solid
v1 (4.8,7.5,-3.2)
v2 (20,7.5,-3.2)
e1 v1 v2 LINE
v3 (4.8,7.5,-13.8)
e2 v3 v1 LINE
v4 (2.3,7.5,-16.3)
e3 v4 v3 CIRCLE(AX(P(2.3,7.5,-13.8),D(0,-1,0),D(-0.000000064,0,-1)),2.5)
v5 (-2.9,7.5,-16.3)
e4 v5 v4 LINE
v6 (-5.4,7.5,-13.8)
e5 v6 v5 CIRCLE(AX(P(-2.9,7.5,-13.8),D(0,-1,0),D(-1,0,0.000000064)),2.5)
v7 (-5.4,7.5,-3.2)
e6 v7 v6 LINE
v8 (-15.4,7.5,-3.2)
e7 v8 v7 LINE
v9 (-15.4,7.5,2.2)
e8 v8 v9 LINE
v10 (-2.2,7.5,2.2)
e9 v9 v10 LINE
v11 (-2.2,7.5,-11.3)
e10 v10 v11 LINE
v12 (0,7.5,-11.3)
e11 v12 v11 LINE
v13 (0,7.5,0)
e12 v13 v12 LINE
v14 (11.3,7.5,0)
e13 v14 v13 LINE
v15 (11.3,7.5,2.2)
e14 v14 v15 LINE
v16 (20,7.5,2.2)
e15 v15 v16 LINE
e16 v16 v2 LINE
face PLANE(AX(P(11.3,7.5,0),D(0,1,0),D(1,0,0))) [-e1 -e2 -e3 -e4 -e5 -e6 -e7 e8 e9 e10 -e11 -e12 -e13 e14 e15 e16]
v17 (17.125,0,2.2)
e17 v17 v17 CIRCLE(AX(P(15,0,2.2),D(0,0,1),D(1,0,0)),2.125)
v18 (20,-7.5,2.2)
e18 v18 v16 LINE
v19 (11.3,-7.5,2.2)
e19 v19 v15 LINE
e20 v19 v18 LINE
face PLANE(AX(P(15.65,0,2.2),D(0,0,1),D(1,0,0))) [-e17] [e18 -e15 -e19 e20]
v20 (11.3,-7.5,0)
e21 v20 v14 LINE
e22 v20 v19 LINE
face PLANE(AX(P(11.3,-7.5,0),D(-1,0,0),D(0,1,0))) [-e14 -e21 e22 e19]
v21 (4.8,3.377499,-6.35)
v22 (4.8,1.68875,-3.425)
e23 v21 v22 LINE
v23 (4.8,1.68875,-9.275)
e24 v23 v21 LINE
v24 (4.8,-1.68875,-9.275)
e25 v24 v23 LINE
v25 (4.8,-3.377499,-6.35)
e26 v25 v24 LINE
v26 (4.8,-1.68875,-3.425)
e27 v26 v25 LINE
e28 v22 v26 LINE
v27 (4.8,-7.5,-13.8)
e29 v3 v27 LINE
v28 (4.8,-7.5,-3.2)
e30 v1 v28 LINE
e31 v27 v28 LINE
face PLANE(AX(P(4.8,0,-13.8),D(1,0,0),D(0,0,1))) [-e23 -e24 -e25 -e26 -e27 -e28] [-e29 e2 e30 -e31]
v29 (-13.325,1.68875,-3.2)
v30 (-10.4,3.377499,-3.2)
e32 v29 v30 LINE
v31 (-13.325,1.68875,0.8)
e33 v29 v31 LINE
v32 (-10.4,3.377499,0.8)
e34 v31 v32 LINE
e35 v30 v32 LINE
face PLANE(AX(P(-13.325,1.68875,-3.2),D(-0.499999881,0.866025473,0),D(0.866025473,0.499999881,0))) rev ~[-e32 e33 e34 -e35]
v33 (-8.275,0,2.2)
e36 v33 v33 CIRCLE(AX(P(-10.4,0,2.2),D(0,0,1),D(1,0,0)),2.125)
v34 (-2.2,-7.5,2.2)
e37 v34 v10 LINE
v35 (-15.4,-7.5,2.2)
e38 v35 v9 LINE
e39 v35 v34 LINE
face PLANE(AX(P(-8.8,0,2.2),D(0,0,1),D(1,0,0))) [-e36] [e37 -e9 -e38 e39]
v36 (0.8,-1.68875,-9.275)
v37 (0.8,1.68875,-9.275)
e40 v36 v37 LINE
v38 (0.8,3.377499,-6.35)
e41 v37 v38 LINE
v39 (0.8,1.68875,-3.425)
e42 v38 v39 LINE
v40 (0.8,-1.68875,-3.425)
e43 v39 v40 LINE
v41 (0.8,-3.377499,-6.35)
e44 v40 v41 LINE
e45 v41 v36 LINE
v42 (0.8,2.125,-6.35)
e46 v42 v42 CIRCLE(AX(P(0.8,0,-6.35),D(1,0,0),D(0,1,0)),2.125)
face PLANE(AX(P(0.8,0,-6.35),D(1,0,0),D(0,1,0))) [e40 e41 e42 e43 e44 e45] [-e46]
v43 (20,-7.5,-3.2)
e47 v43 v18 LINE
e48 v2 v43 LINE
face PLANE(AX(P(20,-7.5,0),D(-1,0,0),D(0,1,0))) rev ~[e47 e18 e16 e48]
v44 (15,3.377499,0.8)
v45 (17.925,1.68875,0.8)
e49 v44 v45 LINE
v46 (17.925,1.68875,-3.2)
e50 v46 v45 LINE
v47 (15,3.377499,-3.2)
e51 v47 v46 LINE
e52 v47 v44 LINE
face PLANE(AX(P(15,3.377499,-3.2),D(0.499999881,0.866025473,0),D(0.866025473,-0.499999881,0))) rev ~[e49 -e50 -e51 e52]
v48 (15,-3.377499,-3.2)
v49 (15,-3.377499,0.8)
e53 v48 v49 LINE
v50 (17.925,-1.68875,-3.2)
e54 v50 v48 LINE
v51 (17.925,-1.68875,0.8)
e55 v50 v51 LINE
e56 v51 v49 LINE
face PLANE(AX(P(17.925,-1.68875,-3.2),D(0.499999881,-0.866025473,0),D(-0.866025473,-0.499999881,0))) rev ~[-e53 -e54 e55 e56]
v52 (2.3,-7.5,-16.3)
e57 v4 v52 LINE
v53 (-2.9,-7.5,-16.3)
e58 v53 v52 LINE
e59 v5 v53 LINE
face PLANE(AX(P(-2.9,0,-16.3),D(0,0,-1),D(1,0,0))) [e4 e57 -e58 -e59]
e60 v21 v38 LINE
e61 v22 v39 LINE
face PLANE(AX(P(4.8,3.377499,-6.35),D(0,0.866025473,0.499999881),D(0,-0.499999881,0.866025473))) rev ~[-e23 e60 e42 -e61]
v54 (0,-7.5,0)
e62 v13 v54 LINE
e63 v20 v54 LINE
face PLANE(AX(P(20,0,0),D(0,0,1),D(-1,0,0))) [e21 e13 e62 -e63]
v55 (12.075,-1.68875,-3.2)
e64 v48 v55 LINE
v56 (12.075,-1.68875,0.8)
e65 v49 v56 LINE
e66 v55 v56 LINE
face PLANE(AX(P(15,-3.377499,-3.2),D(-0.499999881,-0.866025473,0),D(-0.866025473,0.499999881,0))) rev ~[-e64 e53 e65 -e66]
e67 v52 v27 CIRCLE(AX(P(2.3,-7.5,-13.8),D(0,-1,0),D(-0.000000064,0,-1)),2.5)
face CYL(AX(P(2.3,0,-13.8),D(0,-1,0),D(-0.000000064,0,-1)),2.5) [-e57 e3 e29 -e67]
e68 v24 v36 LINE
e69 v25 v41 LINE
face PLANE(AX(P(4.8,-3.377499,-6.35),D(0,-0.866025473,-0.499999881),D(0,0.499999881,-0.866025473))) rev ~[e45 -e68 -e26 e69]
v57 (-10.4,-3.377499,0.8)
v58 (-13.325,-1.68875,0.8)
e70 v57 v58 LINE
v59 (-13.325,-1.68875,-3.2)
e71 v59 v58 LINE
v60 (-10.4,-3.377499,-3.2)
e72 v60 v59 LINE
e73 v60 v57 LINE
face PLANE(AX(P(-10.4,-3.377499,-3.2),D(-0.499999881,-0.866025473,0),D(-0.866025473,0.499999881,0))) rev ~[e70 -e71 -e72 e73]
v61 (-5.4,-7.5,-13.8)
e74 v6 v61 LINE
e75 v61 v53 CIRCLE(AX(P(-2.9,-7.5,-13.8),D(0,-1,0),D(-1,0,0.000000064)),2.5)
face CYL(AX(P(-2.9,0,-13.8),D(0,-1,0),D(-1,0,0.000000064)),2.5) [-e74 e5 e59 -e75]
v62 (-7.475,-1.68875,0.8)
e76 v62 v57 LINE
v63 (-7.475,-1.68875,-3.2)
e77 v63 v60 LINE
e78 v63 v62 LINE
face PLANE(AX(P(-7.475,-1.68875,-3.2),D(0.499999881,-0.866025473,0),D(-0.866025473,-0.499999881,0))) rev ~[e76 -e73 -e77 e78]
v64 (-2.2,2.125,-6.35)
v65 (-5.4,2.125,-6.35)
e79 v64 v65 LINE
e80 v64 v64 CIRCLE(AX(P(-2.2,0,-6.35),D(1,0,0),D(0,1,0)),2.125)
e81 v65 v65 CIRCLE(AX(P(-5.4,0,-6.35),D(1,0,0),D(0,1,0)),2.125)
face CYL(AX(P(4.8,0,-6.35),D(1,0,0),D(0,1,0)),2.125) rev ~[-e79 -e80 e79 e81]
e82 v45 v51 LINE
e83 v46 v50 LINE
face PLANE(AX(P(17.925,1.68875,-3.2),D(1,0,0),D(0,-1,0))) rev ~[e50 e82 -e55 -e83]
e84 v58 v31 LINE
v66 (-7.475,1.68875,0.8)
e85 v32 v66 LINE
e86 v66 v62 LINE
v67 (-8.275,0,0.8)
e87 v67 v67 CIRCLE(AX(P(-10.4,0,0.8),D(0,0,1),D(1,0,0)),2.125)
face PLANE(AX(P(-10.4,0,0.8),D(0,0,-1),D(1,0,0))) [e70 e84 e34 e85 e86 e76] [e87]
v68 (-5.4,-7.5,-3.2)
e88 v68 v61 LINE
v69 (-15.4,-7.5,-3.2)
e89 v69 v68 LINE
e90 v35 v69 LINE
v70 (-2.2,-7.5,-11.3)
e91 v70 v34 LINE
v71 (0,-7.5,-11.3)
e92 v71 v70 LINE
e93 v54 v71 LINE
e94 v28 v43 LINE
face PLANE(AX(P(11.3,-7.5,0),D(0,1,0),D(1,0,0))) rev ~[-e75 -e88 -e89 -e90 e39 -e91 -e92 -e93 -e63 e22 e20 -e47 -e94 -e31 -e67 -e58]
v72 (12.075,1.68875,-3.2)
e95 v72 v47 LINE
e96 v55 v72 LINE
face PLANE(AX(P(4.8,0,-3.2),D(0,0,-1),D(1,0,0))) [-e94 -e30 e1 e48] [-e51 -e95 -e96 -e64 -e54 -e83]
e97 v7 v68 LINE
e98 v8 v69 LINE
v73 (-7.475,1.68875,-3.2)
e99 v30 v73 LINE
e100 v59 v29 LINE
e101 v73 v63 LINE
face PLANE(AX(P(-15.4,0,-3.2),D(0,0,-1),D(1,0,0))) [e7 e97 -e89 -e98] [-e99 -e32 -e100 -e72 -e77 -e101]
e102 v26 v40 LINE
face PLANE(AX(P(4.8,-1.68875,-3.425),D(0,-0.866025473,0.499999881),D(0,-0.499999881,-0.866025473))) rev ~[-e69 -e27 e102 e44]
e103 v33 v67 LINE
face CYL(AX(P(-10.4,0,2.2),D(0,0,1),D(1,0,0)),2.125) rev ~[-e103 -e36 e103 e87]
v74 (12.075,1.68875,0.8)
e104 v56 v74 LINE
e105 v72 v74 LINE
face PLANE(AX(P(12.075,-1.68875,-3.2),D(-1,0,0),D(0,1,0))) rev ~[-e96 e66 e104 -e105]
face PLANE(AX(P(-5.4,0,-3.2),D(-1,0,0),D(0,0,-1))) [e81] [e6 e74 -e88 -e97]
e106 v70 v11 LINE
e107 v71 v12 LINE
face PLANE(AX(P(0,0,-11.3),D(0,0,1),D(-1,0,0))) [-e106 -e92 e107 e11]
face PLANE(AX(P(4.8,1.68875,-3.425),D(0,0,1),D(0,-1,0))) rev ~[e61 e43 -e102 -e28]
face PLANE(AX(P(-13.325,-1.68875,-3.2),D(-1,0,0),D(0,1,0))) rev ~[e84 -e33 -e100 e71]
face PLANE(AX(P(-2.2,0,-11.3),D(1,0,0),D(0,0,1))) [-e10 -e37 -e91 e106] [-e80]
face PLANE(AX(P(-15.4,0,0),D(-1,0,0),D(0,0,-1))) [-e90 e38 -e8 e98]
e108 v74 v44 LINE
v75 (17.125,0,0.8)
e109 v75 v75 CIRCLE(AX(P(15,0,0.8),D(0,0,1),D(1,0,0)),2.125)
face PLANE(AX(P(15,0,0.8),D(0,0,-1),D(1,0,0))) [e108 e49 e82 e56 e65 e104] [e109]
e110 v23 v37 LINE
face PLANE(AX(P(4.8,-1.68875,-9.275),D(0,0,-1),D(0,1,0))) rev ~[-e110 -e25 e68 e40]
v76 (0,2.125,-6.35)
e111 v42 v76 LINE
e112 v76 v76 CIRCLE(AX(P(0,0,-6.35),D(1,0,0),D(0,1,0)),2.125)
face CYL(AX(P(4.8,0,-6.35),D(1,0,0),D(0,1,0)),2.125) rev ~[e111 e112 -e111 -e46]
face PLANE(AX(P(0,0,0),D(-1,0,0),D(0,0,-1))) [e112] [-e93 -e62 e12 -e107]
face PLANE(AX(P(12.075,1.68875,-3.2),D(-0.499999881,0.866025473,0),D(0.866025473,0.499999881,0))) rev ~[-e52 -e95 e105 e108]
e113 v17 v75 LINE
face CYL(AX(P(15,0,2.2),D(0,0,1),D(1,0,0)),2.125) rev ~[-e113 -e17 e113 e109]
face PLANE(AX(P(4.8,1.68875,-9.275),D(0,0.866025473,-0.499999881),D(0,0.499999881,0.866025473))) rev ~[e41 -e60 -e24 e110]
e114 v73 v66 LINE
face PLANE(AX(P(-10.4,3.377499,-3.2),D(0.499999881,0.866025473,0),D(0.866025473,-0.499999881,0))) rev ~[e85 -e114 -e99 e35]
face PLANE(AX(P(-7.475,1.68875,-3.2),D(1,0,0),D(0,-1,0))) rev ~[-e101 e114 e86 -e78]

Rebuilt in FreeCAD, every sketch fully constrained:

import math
import FreeCAD as App
import Part
import Sketcher
from FreeCAD import Vector
Q = App.Units.Quantity


def add_polygon(sketch, points):
    """Adds a closed chain of lines whose ends are joined by coincident constraints."""
    first, n = sketch.GeometryCount, len(points)
    for a, b in zip(points, points[1:] + points[:1]):
        sketch.addGeometry(Part.LineSegment(App.Vector(*a, 0), App.Vector(*b, 0)), False)
    for i in range(n):
        sketch.addConstraint(Sketcher.Constraint("Coincident", first + i, 2, first + (i + 1) % n, 1))

doc = App.newDocument("Part")
body = doc.addObject("PartDesign::Body", "Body")

# Sketch on XZ plane
sketch1 = body.newObject("Sketcher::SketchObject", "Sketch")
sketch1.AttachmentSupport = (doc.getObject("XZ_Plane"), [""])
sketch1.MapMode = "FlatFace"
sketch1.addGeometry(Part.LineSegment(Vector(-2.2, 0, 0), Vector(-15.4, 0, 0)), False)
sketch1.addGeometry(Part.LineSegment(Vector(-15.4, 0, 0), Vector(-15.4, -3.2, 0)), False)
sketch1.addGeometry(Part.LineSegment(Vector(-15.4, -3.2, 0), Vector(-5.4, -3.2, 0)), False)
sketch1.addGeometry(Part.LineSegment(Vector(-5.4, -3.2, 0), Vector(-5.4, -13.8, 0)), False)
sketch1.addGeometry(Part.ArcOfCircle(Part.Circle(Vector(-2.9, -13.8, 0), Vector(0, 0, 1), 2.5), math.radians(180), math.radians(270)), False)
sketch1.addGeometry(Part.LineSegment(Vector(-2.9, -16.3, 0), Vector(2.3, -16.3, 0)), False)
sketch1.addGeometry(Part.ArcOfCircle(Part.Circle(Vector(2.3, -13.8, 0), Vector(0, 0, 1), 2.5), math.radians(-90), math.radians(0)), False)
sketch1.addGeometry(Part.LineSegment(Vector(4.8, -13.8, 0), Vector(4.8, -3.2, 0)), False)
sketch1.addGeometry(Part.LineSegment(Vector(4.8, -3.2, 0), Vector(20, -3.2, 0)), False)
sketch1.addGeometry(Part.LineSegment(Vector(20, -3.2, 0), Vector(20, 0, 0)), False)
sketch1.addGeometry(Part.LineSegment(Vector(20, 0, 0), Vector(0, 0, 0)), False)
sketch1.addGeometry(Part.LineSegment(Vector(0, 0, 0), Vector(0, -11.3, 0)), False)
sketch1.addGeometry(Part.LineSegment(Vector(0, -11.3, 0), Vector(-2.2, -11.3, 0)), False)
sketch1.addGeometry(Part.LineSegment(Vector(-2.2, -11.3, 0), Vector(-2.2, 0, 0)), False)
sketch1.addConstraint(Sketcher.Constraint("Coincident", 0, 2, 1, 1))
sketch1.addConstraint(Sketcher.Constraint("Coincident", 1, 2, 2, 1))
sketch1.addConstraint(Sketcher.Constraint("Coincident", 2, 2, 3, 1))
sketch1.addConstraint(Sketcher.Constraint("Tangent", 3, 2, 4, 1))
sketch1.addConstraint(Sketcher.Constraint("Tangent", 4, 2, 5, 1))
sketch1.addConstraint(Sketcher.Constraint("Tangent", 5, 2, 6, 1))
sketch1.addConstraint(Sketcher.Constraint("Tangent", 6, 2, 7, 1))
sketch1.addConstraint(Sketcher.Constraint("Coincident", 7, 2, 8, 1))
sketch1.addConstraint(Sketcher.Constraint("Coincident", 8, 2, 9, 1))
sketch1.addConstraint(Sketcher.Constraint("Coincident", 9, 2, 10, 1))
sketch1.addConstraint(Sketcher.Constraint("Coincident", 10, 2, 11, 1))
sketch1.addConstraint(Sketcher.Constraint("Coincident", 11, 2, 12, 1))
sketch1.addConstraint(Sketcher.Constraint("Coincident", 12, 2, 13, 1))
sketch1.addConstraint(Sketcher.Constraint("Coincident", 13, 2, 0, 1))
sketch1.addConstraint(Sketcher.Constraint("Horizontal", 0))
sketch1.addConstraint(Sketcher.Constraint("Vertical", 1))
sketch1.addConstraint(Sketcher.Constraint("Horizontal", 2))
sketch1.addConstraint(Sketcher.Constraint("Vertical", 3))
sketch1.addConstraint(Sketcher.Constraint("Horizontal", 5))
sketch1.addConstraint(Sketcher.Constraint("Vertical", 7))
sketch1.addConstraint(Sketcher.Constraint("Horizontal", 8))
sketch1.addConstraint(Sketcher.Constraint("Vertical", 9))
sketch1.addConstraint(Sketcher.Constraint("Horizontal", 10))
sketch1.addConstraint(Sketcher.Constraint("Vertical", 11))
sketch1.addConstraint(Sketcher.Constraint("Horizontal", 12))
sketch1.addConstraint(Sketcher.Constraint("Vertical", 13))
sketch1.addConstraint(Sketcher.Constraint("Coincident", 10, 2, -1, 1))
sketch1.addConstraint(Sketcher.Constraint("Equal", 4, 6))
sketch1.addConstraint(Sketcher.Constraint("PointOnObject", 0, 2, -1))
sketch1.addConstraint(Sketcher.Constraint("Horizontal", 2, 2, 7, 2))
sketch1.addConstraint(Sketcher.Constraint("Radius", 4, 2.5))
sketch1.addConstraint(Sketcher.Constraint("DistanceX", 2, 1, 2, 2, 10.0))
sketch1.addConstraint(Sketcher.Constraint("DistanceX", 10, 2, 10, 1, 20.0))
sketch1.addConstraint(Sketcher.Constraint("DistanceX", 0, 2, 0, 1, 13.2))
sketch1.addConstraint(Sketcher.Constraint("DistanceX", 5, 1, 5, 2, 5.2))
sketch1.addConstraint(Sketcher.Constraint("DistanceX", 8, 1, 8, 2, 15.2))
sketch1.addConstraint(Sketcher.Constraint("DistanceY", 1, 2, 1, 1, 3.2))
sketch1.addConstraint(Sketcher.Constraint("DistanceY", 3, 2, 3, 1, 10.6))
sketch1.addConstraint(Sketcher.Constraint("DistanceY", 11, 2, 11, 1, 11.3))
pad1 = body.newObject("PartDesign::Pad", "Pad")
pad1.Profile = sketch1
pad1.Length = 15
pad1.Midplane = True

# Sketch on XY plane
sketch2 = body.newObject("Sketcher::SketchObject", "Sketch001")
sketch2.AttachmentSupport = (doc.getObject("XY_Plane"), [""])
sketch2.MapMode = "FlatFace"
add_polygon(sketch2, [(11, 8), (11, -8), (20, -8), (20, 8)])  # lines 0-3
add_polygon(sketch2, [(-15, 8), (-15, -8), (-2, -8), (-2, 8)])  # lines 4-7
sketch2.addConstraint(Sketcher.Constraint("Vertical", 0))
sketch2.addConstraint(Sketcher.Constraint("Horizontal", 1))
sketch2.addConstraint(Sketcher.Constraint("Vertical", 2))
sketch2.addConstraint(Sketcher.Constraint("Horizontal", 3))
sketch2.addConstraint(Sketcher.Constraint("Vertical", 4))
sketch2.addConstraint(Sketcher.Constraint("Horizontal", 5))
sketch2.addConstraint(Sketcher.Constraint("Vertical", 6))
sketch2.addConstraint(Sketcher.Constraint("Horizontal", 7))
sketch2.addConstraint(Sketcher.Constraint("Horizontal", 1, 2, 4, 2))
sketch2.addConstraint(Sketcher.Constraint("Horizontal", 3, 2, 6, 2))
sketch2.addConstraint(Sketcher.Constraint("DistanceY", 0, 2, 0, 1, 15.0))
sketch2.addConstraint(Sketcher.Constraint("DistanceX", 1, 1, 1, 2, 8.7))
sketch2.addConstraint(Sketcher.Constraint("DistanceX", 5, 1, 5, 2, 13.2))
sketch2.addConstraint(Sketcher.Constraint("DistanceX", -1, 1, 1, 2, 20.0))
sketch2.addConstraint(Sketcher.Constraint("DistanceY", 0, 2, -1, 1, 7.5))
sketch2.addConstraint(Sketcher.Constraint("DistanceX", 4, 2, -1, 1, 15.4))
pad2 = body.newObject("PartDesign::Pad", "Pad001")
pad2.Profile = sketch2
pad2.Length = 2.2

# Sketch on XY plane
sketch3 = body.newObject("Sketcher::SketchObject", "Sketch002")
sketch3.AttachmentSupport = (doc.getObject("XY_Plane"), [""])
sketch3.MapMode = "FlatFace"
sketch3.AttachmentOffset = App.Placement(Vector(0, 0, 2.2), App.Rotation())
sketch3.addGeometry(Part.Circle(Vector(-10.4, 0, 0), Vector(0, 0, 1), 2.1), False)
sketch3.addGeometry(Part.Circle(Vector(15, 0, 0), Vector(0, 0, 1), 2.1), False)
sketch3.addConstraint(Sketcher.Constraint("Equal", 0, 1))
sketch3.addConstraint(Sketcher.Constraint("PointOnObject", 0, 3, -1))
sketch3.addConstraint(Sketcher.Constraint("PointOnObject", 1, 3, -1))
sketch3.addConstraint(Sketcher.Constraint("Diameter", 0, 4.25))
sketch3.addConstraint(Sketcher.Constraint("DistanceX", -1, 1, 1, 3, 15.0))
sketch3.addConstraint(Sketcher.Constraint("DistanceX", 0, 3, -1, 1, 10.4))
pocket1 = body.newObject("PartDesign::Pocket", "Pocket")
pocket1.Profile = sketch3
pocket1.Length = 25

# Sketch on XY plane
sketch4 = body.newObject("Sketcher::SketchObject", "Sketch003")
sketch4.AttachmentSupport = (doc.getObject("XY_Plane"), [""])
sketch4.MapMode = "FlatFace"
sketch4.AttachmentOffset = App.Placement(Vector(0, 0, -3.2), App.Rotation())
add_polygon(sketch4, [(-7.5, 1.7), (-7.5, -1.7), (-10.4, -3.4), (-13.3, -1.7), (-13.3, 1.7), (-10.4, 3.4)])  # lines 0-5
add_polygon(sketch4, [(17.9, 1.7), (17.9, -1.7), (15, -3.4), (12.1, -1.7), (12.1, 1.7), (15, 3.4)])  # lines 6-11
sketch4.addConstraint(Sketcher.Constraint("Vertical", 0))
sketch4.addConstraint(Sketcher.Constraint("Vertical", 3))
sketch4.addConstraint(Sketcher.Constraint("Vertical", 6))
sketch4.addConstraint(Sketcher.Constraint("Vertical", 9))
sketch4.addConstraint(Sketcher.Constraint("Symmetric", 1, 2, 4, 2, -1))
sketch4.addConstraint(Sketcher.Constraint("Symmetric", 7, 2, 10, 2, -1))
sketch4.addConstraint(Sketcher.Constraint("Parallel", 1, 4))
sketch4.addConstraint(Sketcher.Constraint("Parallel", 2, 5))
sketch4.addConstraint(Sketcher.Constraint("Parallel", 4, 7))
sketch4.addConstraint(Sketcher.Constraint("Parallel", 5, 8))
sketch4.addConstraint(Sketcher.Constraint("Parallel", 7, 10))
sketch4.addConstraint(Sketcher.Constraint("Parallel", 8, 11))
sketch4.addConstraint(Sketcher.Constraint("Horizontal", 0, 2, 2, 2))
sketch4.addConstraint(Sketcher.Constraint("Horizontal", 3, 2, 5, 2))
sketch4.addConstraint(Sketcher.Constraint("Horizontal", 2, 2, 6, 2))
sketch4.addConstraint(Sketcher.Constraint("Horizontal", 1, 2, 7, 2))
sketch4.addConstraint(Sketcher.Constraint("Horizontal", 6, 2, 8, 2))
sketch4.addConstraint(Sketcher.Constraint("Angle", 1, Q("-150.000008 deg")))
sketch4.addConstraint(Sketcher.Constraint("DistanceX", -1, 1, 7, 2, 15.0))
sketch4.addConstraint(Sketcher.Constraint("DistanceX", 1, 2, -1, 1, 10.4))
sketch4.addConstraint(Sketcher.Constraint("DistanceX", 2, 2, 0, 2, 5.85))
sketch4.addConstraint(Sketcher.Constraint("DistanceY", 0, 2, 0, 1, 3.3775))
pocket2 = body.newObject("PartDesign::Pocket", "Pocket001")
pocket2.Profile = sketch4
pocket2.Length = 4
pocket2.Reversed = True

# Sketch on YZ plane
sketch5 = body.newObject("Sketcher::SketchObject", "Sketch004")
sketch5.AttachmentSupport = (doc.getObject("YZ_Plane"), [""])
sketch5.MapMode = "FlatFace"
sketch5.AttachmentOffset = App.Placement(Vector(0, 0, 4.8), App.Rotation())
sketch5.addGeometry(Part.Circle(Vector(0, -6.3, 0), Vector(0, 0, 1), 2.1), False)
sketch5.addConstraint(Sketcher.Constraint("PointOnObject", 0, 3, -2))
sketch5.addConstraint(Sketcher.Constraint("Diameter", 0, 4.25))
sketch5.addConstraint(Sketcher.Constraint("DistanceY", 0, 3, -1, 1, 6.35))
pocket3 = body.newObject("PartDesign::Pocket", "Pocket002")
pocket3.Profile = sketch5
pocket3.Length = 25

# Sketch on YZ plane
sketch6 = body.newObject("Sketcher::SketchObject", "Sketch005")
sketch6.AttachmentSupport = (doc.getObject("YZ_Plane"), [""])
sketch6.MapMode = "FlatFace"
sketch6.AttachmentOffset = App.Placement(Vector(0, 0, 4.8), App.Rotation())
add_polygon(sketch6, [(-1.7, -9.3), (1.7, -9.3), (3.4, -6.3), (1.7, -3.4), (-1.7, -3.4), (-3.4, -6.3)])  # lines 0-5
sketch6.addConstraint(Sketcher.Constraint("Horizontal", 0))
sketch6.addConstraint(Sketcher.Constraint("Horizontal", 3))
sketch6.addConstraint(Sketcher.Constraint("Symmetric", 1, 2, 4, 2, -2))
sketch6.addConstraint(Sketcher.Constraint("Parallel", 1, 4))
sketch6.addConstraint(Sketcher.Constraint("Parallel", 2, 5))
sketch6.addConstraint(Sketcher.Constraint("Vertical", 0, 2, 2, 2))
sketch6.addConstraint(Sketcher.Constraint("Vertical", 3, 2, 5, 2))
sketch6.addConstraint(Sketcher.Constraint("Angle", 1, Q("60.000008 deg")))
sketch6.addConstraint(Sketcher.Constraint("DistanceY", 1, 2, -1, 1, 6.35))
sketch6.addConstraint(Sketcher.Constraint("DistanceY", 0, 2, 2, 2, 5.85))
sketch6.addConstraint(Sketcher.Constraint("DistanceX", 0, 1, 0, 2, 3.3775))
pocket4 = body.newObject("PartDesign::Pocket", "Pocket003")
pocket4.Profile = sketch6
pocket4.Length = 4

doc.recompute()
